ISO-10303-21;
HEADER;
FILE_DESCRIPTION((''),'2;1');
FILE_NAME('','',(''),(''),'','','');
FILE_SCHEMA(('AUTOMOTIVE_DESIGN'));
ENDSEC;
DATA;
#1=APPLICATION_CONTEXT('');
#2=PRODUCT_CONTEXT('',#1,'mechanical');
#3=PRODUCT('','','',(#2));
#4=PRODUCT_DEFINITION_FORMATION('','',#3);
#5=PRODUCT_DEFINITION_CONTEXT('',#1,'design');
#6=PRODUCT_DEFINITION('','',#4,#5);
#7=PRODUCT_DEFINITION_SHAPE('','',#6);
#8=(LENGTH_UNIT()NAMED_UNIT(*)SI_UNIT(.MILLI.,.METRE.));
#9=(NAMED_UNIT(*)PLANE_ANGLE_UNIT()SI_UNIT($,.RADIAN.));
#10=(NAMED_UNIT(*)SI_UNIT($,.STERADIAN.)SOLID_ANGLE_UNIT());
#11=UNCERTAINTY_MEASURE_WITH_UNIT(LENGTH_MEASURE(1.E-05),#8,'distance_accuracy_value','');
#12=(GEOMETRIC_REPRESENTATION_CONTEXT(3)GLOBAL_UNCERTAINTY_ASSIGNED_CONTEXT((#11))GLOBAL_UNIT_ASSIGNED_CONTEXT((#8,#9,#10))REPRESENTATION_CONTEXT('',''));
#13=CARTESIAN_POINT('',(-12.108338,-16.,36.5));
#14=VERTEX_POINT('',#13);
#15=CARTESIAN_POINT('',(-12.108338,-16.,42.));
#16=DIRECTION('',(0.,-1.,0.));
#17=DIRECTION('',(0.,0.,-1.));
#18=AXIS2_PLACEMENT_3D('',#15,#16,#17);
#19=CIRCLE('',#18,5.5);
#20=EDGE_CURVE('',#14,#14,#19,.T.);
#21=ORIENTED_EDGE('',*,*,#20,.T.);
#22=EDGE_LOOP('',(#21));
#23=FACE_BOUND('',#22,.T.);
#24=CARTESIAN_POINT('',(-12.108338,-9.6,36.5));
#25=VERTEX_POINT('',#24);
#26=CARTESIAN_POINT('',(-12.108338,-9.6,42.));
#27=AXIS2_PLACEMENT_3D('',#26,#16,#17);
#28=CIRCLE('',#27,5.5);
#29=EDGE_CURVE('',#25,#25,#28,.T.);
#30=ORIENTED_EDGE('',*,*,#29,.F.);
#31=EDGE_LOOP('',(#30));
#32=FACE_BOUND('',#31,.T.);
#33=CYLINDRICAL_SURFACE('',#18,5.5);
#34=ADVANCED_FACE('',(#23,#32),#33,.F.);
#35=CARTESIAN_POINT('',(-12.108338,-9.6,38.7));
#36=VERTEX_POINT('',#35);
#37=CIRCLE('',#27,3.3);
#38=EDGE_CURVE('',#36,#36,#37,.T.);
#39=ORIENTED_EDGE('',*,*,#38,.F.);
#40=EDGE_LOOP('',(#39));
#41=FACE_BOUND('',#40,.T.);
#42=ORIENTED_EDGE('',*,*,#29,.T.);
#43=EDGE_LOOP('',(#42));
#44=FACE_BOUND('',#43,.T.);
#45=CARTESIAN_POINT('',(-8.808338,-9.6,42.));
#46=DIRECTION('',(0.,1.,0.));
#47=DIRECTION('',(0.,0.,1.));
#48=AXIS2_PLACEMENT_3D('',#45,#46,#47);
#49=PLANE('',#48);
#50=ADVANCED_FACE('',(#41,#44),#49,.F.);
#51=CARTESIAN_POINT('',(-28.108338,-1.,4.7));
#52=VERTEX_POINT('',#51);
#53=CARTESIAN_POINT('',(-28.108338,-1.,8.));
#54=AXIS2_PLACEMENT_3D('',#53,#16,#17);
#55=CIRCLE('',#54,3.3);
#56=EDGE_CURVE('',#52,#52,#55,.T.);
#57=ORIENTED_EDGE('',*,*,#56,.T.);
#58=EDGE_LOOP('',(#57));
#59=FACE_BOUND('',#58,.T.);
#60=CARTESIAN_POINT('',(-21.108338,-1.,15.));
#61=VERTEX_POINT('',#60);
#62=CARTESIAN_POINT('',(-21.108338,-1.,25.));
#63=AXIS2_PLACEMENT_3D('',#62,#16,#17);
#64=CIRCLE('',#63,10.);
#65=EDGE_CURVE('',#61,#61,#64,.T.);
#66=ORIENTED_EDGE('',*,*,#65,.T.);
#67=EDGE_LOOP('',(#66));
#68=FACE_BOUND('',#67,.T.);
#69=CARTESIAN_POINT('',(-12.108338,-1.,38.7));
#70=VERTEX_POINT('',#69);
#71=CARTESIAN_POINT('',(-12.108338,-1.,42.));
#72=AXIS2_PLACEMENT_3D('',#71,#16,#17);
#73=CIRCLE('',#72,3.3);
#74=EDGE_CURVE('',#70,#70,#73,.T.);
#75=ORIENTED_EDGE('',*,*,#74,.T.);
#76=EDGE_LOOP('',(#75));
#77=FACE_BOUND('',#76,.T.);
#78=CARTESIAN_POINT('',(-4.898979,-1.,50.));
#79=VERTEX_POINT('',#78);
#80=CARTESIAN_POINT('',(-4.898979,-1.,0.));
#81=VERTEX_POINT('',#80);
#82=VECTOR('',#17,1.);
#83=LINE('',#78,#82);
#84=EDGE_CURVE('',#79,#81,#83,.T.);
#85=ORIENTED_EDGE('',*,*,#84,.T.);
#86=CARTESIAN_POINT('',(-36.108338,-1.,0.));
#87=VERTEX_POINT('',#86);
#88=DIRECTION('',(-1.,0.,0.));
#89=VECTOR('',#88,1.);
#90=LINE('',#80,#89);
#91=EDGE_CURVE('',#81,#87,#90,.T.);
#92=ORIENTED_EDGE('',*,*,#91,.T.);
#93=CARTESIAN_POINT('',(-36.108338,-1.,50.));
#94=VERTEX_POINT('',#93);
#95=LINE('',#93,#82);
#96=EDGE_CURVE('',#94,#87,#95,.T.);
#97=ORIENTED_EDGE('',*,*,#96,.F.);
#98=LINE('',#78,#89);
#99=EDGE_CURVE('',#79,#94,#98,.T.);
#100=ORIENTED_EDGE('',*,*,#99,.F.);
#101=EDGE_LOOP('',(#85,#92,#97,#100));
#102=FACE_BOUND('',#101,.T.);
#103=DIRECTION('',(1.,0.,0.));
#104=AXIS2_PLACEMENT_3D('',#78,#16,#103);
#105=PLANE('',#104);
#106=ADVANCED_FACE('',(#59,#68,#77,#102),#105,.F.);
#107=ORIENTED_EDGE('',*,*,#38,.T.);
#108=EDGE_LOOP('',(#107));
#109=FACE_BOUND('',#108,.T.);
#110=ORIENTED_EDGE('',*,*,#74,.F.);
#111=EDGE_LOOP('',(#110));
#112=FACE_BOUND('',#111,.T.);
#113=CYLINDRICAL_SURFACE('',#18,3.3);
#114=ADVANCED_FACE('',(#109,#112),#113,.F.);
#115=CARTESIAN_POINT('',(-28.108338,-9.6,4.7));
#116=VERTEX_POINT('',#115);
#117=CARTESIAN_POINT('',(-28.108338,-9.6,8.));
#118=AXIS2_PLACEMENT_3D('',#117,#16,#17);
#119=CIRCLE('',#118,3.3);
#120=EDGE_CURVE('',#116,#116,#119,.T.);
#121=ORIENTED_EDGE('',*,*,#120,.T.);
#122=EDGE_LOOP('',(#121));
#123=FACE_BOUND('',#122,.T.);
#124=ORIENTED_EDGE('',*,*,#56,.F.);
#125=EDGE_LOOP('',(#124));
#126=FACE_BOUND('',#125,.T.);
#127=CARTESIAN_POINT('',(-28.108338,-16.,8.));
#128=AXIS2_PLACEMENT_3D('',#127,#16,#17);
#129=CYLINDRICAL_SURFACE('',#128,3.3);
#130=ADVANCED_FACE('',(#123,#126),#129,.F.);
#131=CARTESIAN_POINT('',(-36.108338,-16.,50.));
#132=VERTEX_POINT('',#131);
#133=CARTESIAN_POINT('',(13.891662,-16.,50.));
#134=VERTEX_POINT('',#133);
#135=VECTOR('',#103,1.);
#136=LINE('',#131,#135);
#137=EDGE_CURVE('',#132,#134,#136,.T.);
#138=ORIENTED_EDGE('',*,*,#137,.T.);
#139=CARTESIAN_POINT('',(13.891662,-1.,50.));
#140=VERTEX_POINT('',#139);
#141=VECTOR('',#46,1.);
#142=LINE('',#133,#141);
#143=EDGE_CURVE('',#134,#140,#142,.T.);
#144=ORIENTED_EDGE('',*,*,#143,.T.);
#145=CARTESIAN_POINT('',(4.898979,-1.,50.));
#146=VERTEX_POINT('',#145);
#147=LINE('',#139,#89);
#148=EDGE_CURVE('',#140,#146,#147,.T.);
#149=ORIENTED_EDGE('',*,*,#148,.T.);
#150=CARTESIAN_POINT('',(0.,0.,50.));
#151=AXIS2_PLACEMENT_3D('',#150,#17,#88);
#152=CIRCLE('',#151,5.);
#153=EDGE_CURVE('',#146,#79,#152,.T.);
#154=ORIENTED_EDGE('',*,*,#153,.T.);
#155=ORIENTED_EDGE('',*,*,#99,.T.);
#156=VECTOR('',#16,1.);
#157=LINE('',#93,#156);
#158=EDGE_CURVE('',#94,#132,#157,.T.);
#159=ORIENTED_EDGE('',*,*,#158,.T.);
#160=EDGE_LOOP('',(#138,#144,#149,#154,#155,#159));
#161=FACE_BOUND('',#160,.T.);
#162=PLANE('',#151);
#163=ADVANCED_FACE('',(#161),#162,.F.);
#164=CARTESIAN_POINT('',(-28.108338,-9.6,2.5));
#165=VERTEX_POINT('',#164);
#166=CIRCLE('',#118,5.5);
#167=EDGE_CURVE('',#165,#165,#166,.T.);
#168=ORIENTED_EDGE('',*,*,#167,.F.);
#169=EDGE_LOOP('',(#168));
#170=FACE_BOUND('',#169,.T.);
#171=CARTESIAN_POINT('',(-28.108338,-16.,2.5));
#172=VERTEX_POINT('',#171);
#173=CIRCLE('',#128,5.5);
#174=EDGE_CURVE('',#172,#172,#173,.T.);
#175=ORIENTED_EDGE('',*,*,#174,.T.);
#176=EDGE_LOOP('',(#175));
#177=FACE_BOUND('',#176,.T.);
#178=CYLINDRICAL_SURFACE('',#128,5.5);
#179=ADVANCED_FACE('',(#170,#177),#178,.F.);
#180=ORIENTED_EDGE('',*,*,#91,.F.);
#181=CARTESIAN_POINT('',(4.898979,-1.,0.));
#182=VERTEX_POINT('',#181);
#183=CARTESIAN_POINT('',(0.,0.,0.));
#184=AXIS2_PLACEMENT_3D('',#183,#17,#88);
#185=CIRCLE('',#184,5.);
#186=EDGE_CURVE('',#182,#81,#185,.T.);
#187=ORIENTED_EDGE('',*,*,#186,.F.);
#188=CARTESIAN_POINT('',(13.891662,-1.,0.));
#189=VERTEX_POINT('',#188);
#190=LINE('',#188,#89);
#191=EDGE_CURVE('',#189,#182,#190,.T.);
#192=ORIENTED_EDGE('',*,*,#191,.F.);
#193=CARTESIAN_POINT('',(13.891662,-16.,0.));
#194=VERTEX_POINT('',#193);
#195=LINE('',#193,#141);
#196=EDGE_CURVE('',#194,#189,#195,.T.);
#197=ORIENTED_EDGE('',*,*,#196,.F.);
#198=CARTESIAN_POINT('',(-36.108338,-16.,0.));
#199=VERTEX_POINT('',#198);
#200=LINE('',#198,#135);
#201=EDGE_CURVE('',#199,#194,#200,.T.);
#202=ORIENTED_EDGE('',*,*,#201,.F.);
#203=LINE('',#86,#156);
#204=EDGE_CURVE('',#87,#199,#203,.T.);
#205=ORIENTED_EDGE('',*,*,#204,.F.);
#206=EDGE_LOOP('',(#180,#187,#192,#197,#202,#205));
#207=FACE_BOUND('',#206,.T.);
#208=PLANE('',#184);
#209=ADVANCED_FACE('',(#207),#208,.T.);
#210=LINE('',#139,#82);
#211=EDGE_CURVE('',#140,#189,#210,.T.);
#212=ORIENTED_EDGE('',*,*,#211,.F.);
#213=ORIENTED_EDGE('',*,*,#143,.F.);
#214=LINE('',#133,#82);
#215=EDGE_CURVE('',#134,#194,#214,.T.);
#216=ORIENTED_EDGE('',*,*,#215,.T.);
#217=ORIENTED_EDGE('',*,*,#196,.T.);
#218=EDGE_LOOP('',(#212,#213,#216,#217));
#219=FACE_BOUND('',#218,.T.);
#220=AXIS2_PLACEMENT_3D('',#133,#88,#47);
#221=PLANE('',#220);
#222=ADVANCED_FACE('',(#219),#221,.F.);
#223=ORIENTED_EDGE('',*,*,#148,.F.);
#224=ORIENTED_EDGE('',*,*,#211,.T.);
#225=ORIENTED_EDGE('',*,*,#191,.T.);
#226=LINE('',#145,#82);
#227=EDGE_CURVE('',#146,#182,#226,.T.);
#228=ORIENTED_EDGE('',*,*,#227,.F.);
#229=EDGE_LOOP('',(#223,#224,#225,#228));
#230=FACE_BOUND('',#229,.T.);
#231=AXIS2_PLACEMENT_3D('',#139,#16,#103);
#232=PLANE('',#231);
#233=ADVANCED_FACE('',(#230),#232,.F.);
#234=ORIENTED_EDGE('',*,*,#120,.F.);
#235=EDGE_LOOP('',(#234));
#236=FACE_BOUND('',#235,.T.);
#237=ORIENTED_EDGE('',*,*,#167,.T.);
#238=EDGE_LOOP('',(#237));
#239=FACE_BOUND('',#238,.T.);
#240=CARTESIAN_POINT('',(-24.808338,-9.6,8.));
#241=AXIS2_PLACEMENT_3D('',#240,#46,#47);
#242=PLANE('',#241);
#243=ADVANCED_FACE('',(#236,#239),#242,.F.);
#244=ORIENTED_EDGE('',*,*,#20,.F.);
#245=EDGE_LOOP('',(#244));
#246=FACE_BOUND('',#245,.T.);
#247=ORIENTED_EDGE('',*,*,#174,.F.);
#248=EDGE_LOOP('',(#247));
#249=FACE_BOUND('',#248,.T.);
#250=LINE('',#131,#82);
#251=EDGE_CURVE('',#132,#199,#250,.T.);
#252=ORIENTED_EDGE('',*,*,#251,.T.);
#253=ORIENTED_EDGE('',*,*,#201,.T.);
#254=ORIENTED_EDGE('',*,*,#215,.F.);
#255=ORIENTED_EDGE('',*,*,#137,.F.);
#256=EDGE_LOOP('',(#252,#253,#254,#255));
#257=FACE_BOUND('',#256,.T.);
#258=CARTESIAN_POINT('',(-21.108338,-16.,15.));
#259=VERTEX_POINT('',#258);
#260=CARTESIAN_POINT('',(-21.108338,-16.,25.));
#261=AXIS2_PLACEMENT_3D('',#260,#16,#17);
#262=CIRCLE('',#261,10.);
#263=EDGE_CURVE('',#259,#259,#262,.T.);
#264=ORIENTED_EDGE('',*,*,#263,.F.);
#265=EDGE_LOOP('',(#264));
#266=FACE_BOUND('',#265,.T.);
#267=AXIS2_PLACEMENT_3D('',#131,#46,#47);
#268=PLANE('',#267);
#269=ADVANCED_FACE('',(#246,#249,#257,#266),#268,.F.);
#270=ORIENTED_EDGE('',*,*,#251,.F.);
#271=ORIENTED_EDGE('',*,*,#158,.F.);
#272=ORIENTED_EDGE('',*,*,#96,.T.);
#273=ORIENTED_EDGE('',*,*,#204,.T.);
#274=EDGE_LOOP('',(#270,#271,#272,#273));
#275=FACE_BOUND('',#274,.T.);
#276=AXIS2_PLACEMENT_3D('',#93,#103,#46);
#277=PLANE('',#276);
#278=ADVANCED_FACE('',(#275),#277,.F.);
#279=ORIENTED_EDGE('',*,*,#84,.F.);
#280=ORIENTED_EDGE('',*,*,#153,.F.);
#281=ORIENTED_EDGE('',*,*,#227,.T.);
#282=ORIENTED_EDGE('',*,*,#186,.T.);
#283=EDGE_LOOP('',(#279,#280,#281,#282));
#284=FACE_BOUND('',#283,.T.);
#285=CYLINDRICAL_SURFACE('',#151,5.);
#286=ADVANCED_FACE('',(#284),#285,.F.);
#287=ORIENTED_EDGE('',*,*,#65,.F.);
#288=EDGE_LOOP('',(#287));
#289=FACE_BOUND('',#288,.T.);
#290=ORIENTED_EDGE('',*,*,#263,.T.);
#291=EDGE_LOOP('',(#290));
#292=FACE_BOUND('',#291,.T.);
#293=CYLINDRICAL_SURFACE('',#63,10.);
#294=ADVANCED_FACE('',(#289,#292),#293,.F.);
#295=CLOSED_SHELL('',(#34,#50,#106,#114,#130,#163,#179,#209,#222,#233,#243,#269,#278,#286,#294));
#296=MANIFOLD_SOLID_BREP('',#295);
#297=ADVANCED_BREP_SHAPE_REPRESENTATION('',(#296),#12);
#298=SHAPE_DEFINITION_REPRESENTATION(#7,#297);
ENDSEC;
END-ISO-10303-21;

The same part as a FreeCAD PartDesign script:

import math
import FreeCAD as App
import Part
import Sketcher

doc = App.newDocument("Part")
body = doc.addObject("PartDesign::Body", "Body")

# Sketch on XY plane
sketch1 = body.newObject("Sketcher::SketchObject", "Sketch")
sketch1.AttachmentSupport = (doc.getObject("XY_Plane"), [""])
sketch1.MapMode = "FlatFace"
sketch1.addGeometry([
    Part.LineSegment(App.Vector(-36.108338, -1, 0), App.Vector(-36.108338, -16, 0)),  # 0
    Part.LineSegment(App.Vector(-36.108338, -16, 0), App.Vector(13.891662, -16, 0)),  # 1
    Part.LineSegment(App.Vector(13.891662, -16, 0), App.Vector(13.891662, -1, 0)),  # 2
    Part.LineSegment(App.Vector(13.891662, -1, 0), App.Vector(4.898979, -1, 0)),  # 3
    Part.ArcOfCircle(Part.Circle(App.Vector(0, 0, 0), App.Vector(0, 0, 1), 5), math.radians(-168.463041), math.radians(-11.536959)),  # 4
    Part.LineSegment(App.Vector(-4.898979, -1, 0), App.Vector(-36.108338, -1, 0)),  # 5
], False)
sketch1.addConstraint([
    Sketcher.Constraint("Coincident", 0, 2, 1, 1),
    Sketcher.Constraint("Coincident", 1, 2, 2, 1),
    Sketcher.Constraint("Coincident", 2, 2, 3, 1),
    Sketcher.Constraint("Coincident", 3, 2, 4, 2),
    Sketcher.Constraint("Coincident", 4, 1, 5, 1),
    Sketcher.Constraint("Coincident", 5, 2, 0, 1),
    Sketcher.Constraint("Vertical", 0),
    Sketcher.Constraint("Horizontal", 1),
    Sketcher.Constraint("Vertical", 2),
    Sketcher.Constraint("Horizontal", 3),
    Sketcher.Constraint("Horizontal", 5),
    Sketcher.Constraint("Coincident", 4, 3, -1, 1),
    Sketcher.Constraint("Horizontal", 3, 2, 4, 1),
    Sketcher.Constraint("Radius", 4, 5.0),
    Sketcher.Constraint("DistanceX", 1, 1, 1, 2, 50.0),
    Sketcher.Constraint("DistanceY", 0, 2, 0, 1, 15.0),
    Sketcher.Constraint("DistanceY", 0, 2, -1, 1, 16.0),
    Sketcher.Constraint("DistanceX", 5, 2, 5, 1, 31.209358),
])
pad1 = body.newObject("PartDesign::Pad", "Pad")
pad1.Profile = sketch1
pad1.Length = 50

# Sketch on XZ plane
sketch2 = body.newObject("Sketcher::SketchObject", "Sketch001")
sketch2.AttachmentSupport = (doc.getObject("XZ_Plane"), [""])
sketch2.MapMode = "FlatFace"
sketch2.AttachmentOffset = App.Placement(App.Vector(0, 0, 16), App.Rotation())
sketch2.addGeometry([
    Part.Circle(App.Vector(-12.108338, 42, 0), App.Vector(0, 0, 1), 3.3),
    Part.Circle(App.Vector(-28.108338, 8, 0), App.Vector(0, 0, 1), 3.3),
], False)
sketch2.addConstraint([
    Sketcher.Constraint("Equal", 0, 1),
    Sketcher.Constraint("Diameter", 0, 6.6),
    Sketcher.Constraint("DistanceY", -1, 1, 0, 3, 42.0),
    Sketcher.Constraint("DistanceY", -1, 1, 1, 3, 8.0),
    Sketcher.Constraint("DistanceX", 1, 3, 0, 3, 16.0),
    Sketcher.Constraint("DistanceX", 0, 3, -1, 1, 12.108338),
])
doc.recompute()
hole = body.newObject("PartDesign::Hole", "Hole")
hole.Profile = sketch2
hole.ThreadType = "None"
hole.Diameter = 6.6
hole.DepthType = "ThroughAll"
hole.HoleCutType = "Counterbore"
hole.HoleCutDiameter = 11
hole.HoleCutDepth = 6.4

# Sketch on XZ plane
sketch3 = body.newObject("Sketcher::SketchObject", "Sketch002")
sketch3.AttachmentSupport = (doc.getObject("XZ_Plane"), [""])
sketch3.MapMode = "FlatFace"
sketch3.AttachmentOffset = App.Placement(App.Vector(0, 0, 16), App.Rotation())
sketch3.addGeometry(Part.Circle(App.Vector(-21.108338, 25, 0), App.Vector(0, 0, 1), 10), False)
sketch3.addConstraint([
    Sketcher.Constraint("Diameter", 0, 20.0),
    Sketcher.Constraint("DistanceY", -1, 1, 0, 3, 25.0),
    Sketcher.Constraint("DistanceX", 0, 3, -1, 1, 21.108338),
])
pocket1 = body.newObject("PartDesign::Pocket", "Pocket")
pocket1.Profile = sketch3
pocket1.Type = "ThroughAll"

doc.recompute()
